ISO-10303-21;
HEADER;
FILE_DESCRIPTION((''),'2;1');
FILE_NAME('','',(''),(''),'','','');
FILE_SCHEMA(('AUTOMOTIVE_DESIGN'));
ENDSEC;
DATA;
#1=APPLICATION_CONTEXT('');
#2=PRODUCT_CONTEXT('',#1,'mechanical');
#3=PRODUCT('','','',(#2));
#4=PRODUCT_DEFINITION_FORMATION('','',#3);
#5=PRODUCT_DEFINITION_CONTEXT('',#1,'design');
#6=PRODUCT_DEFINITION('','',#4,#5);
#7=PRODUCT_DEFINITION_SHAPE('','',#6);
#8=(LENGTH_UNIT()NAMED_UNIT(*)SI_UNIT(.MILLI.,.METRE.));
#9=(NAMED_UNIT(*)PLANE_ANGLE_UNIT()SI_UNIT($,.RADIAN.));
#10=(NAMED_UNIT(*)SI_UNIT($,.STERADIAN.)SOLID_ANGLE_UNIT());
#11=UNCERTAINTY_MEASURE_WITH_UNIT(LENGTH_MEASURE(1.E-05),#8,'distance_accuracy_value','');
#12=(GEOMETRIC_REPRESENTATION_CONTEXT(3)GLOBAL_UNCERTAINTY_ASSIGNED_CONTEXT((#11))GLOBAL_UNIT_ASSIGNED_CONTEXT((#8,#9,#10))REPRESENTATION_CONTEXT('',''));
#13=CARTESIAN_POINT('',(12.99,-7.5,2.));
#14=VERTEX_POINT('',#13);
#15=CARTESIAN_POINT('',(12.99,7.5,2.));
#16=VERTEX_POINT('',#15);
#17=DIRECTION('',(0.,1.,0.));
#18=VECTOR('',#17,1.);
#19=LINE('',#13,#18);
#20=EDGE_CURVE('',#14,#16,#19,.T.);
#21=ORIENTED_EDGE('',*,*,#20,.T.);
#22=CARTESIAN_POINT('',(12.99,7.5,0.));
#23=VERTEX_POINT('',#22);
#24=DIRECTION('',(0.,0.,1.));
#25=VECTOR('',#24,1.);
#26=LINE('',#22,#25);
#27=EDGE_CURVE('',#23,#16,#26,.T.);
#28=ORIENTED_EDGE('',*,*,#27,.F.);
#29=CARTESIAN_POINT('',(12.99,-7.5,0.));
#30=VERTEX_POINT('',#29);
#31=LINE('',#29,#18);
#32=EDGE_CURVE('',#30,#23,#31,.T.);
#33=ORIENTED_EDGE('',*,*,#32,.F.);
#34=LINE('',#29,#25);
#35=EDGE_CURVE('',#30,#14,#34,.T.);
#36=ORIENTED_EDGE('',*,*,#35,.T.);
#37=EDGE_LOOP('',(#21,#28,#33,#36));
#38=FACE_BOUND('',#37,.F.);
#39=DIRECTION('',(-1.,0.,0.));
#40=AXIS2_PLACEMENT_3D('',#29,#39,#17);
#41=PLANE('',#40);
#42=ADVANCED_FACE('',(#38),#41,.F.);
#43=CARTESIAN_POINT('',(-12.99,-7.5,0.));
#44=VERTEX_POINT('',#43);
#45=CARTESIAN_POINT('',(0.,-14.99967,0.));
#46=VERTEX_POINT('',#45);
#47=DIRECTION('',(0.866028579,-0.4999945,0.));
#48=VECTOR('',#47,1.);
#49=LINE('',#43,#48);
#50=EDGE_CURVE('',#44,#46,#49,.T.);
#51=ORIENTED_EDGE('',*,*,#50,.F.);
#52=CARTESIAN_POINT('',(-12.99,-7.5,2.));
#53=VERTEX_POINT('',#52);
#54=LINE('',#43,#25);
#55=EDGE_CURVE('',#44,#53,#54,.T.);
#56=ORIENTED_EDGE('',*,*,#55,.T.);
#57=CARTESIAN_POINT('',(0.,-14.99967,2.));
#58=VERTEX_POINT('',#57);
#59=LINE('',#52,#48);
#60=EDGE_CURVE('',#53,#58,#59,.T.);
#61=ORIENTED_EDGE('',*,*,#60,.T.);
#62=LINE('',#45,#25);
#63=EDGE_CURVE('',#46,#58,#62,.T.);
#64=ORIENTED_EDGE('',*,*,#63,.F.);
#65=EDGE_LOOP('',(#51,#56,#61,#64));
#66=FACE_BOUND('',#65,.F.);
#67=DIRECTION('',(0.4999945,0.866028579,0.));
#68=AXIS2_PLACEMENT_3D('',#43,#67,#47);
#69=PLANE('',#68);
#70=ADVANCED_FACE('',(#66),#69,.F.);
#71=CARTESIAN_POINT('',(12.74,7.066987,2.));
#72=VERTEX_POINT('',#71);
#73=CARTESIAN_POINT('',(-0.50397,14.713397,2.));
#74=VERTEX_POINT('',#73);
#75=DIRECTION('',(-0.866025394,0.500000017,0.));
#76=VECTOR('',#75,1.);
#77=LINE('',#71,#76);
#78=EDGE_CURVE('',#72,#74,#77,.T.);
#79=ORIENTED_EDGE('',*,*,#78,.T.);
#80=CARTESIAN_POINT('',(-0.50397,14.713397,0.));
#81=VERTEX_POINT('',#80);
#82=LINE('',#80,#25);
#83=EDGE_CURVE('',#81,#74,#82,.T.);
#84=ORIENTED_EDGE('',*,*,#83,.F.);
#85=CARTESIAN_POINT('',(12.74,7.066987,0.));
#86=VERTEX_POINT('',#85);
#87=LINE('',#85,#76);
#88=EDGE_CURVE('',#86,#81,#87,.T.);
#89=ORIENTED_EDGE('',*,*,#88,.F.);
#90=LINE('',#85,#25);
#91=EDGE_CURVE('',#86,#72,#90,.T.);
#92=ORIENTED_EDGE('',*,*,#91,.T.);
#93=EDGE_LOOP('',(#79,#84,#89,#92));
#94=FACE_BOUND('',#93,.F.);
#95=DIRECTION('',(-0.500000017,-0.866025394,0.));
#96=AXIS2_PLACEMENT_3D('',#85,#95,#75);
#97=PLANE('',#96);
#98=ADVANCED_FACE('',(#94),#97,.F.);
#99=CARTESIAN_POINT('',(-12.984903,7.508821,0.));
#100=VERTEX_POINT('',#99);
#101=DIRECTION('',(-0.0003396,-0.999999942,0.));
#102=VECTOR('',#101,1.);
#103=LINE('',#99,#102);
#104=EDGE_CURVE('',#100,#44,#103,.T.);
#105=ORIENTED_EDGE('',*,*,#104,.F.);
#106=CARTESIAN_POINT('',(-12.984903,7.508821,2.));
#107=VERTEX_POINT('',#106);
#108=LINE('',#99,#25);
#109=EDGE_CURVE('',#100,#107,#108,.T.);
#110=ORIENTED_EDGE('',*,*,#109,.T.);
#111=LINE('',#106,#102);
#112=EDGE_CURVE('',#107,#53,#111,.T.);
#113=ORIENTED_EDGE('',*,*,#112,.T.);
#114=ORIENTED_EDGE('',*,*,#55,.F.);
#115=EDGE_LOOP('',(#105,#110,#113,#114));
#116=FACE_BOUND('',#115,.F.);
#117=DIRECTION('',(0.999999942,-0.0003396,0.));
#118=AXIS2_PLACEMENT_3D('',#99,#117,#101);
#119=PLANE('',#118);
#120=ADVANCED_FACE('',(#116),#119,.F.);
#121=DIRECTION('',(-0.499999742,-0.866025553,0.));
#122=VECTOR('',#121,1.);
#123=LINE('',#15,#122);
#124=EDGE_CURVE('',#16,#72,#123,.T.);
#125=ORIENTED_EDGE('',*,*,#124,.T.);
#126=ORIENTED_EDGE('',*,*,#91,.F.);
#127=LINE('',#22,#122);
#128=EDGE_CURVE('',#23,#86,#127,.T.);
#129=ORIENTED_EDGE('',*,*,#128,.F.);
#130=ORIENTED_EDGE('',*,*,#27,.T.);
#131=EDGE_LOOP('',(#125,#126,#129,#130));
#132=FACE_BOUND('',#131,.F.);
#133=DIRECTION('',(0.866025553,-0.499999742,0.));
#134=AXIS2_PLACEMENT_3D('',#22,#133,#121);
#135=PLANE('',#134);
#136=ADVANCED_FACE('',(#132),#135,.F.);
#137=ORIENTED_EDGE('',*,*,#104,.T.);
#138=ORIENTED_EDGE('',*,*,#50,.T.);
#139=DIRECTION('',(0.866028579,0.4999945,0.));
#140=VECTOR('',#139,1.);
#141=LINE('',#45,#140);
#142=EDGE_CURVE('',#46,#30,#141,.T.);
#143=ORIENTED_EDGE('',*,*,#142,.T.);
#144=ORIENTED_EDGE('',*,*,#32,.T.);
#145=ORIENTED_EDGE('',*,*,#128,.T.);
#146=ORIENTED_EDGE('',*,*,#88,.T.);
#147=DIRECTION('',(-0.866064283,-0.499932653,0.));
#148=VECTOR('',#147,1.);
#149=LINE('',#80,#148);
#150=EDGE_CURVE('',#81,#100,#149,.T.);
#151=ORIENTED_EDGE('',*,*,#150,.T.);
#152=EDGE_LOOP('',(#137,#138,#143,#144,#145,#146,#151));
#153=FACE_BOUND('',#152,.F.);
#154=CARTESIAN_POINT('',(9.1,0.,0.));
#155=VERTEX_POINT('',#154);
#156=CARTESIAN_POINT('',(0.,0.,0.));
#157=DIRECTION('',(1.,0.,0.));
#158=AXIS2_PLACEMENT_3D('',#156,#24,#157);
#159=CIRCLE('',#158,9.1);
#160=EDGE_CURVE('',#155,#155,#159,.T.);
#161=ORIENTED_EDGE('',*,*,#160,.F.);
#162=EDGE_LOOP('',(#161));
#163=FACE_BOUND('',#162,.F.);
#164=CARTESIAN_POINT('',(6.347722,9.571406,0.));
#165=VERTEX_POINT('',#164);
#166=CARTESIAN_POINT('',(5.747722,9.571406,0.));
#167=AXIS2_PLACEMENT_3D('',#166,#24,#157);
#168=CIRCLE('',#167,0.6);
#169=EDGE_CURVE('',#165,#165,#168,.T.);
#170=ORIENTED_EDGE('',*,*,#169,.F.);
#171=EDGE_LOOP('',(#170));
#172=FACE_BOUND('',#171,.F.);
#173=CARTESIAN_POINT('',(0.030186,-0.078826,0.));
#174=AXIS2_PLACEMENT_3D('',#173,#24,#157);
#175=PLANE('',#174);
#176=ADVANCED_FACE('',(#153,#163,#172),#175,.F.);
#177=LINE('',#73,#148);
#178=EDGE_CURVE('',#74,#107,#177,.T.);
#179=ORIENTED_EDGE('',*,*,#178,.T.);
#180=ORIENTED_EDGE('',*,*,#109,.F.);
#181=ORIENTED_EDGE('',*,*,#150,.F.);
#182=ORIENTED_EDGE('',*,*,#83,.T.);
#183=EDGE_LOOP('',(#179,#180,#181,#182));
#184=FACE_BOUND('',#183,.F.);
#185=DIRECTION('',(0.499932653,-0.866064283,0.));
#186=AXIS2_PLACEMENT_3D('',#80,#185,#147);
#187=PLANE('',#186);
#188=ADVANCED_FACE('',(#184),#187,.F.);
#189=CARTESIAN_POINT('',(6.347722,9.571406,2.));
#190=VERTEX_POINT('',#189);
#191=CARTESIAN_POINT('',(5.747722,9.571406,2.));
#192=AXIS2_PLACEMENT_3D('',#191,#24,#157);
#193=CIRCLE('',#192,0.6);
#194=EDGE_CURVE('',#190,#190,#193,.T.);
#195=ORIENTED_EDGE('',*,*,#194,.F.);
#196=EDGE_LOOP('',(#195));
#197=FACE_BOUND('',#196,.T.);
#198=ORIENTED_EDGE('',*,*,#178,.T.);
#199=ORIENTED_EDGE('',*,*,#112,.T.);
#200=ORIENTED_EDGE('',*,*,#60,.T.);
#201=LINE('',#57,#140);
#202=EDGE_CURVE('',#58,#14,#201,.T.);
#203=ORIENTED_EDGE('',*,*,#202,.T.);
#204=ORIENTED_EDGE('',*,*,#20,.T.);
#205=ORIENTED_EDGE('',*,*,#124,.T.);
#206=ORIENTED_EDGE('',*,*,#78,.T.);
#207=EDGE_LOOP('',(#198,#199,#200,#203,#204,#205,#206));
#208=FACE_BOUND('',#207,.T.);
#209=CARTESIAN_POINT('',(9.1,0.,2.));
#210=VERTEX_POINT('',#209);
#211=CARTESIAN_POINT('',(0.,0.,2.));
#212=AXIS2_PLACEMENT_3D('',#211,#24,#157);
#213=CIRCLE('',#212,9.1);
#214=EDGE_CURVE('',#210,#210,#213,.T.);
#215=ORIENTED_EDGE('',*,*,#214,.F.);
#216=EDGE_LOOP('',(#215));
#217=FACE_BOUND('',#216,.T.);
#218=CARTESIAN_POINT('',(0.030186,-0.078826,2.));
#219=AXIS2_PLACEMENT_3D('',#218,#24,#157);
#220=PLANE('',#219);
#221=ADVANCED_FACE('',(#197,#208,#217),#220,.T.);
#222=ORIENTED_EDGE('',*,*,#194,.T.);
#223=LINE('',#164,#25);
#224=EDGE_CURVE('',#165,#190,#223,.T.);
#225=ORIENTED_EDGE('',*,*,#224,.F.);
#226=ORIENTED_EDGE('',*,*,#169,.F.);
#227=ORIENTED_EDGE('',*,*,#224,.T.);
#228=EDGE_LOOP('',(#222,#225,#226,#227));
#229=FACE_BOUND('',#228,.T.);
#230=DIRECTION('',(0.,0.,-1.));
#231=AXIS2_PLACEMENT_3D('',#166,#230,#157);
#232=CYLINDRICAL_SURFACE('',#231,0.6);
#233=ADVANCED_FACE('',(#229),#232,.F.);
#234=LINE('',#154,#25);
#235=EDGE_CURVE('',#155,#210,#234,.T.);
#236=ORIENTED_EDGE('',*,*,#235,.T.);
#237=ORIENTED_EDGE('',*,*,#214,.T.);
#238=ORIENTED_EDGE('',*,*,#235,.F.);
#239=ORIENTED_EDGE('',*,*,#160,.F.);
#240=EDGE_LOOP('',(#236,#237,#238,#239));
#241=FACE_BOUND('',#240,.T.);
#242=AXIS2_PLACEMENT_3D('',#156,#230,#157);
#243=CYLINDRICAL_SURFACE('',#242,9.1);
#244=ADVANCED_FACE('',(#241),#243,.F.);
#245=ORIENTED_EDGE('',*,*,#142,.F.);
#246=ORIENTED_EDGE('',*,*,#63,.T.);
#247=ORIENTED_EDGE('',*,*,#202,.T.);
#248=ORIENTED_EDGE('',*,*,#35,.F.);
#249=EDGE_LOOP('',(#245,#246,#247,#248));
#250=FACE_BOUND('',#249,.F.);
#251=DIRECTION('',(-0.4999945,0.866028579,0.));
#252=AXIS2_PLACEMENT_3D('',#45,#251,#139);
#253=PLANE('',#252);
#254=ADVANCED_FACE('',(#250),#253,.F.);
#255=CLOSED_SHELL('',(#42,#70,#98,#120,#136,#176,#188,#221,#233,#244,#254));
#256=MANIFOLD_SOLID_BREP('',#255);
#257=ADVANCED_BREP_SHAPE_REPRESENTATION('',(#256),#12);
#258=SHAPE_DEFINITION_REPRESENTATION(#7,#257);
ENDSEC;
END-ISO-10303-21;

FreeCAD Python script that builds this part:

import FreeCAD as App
import Part
import Sketcher
from FreeCAD import Vector
Q = App.Units.Quantity

doc = App.newDocument("Part")
body = doc.addObject("PartDesign::Body", "Body")

# Sketch on XY plane
sketch1 = body.newObject("Sketcher::SketchObject", "Sketch")
sketch1.AttachmentSupport = (doc.getObject("XY_Plane"), [""])
sketch1.MapMode = "FlatFace"
sketch1.addGeometry([
    Part.LineSegment(Vector(-0.50397, 14.713397, 0), Vector(-12.984903, 7.508821, 0)),  # 0
    Part.LineSegment(Vector(-12.984903, 7.508821, 0), Vector(-12.99, -7.5, 0)),  # 1
    Part.LineSegment(Vector(-12.99, -7.5, 0), Vector(0, -14.99967, 0)),  # 2
    Part.LineSegment(Vector(0, -14.99967, 0), Vector(12.99, -7.5, 0)),  # 3
    Part.LineSegment(Vector(12.99, -7.5, 0), Vector(12.99, 7.5, 0)),  # 4
    Part.LineSegment(Vector(12.99, 7.5, 0), Vector(12.74, 7.066987, 0)),  # 5
    Part.LineSegment(Vector(12.74, 7.066987, 0), Vector(-0.50397, 14.713397, 0)),  # 6
    Part.Circle(Vector(0, 0, 0), Vector(0, 0, 1), 9.1),  # 7
    Part.Circle(Vector(5.747722, 9.571406, 0), Vector(0, 0, 1), 0.6),  # 8
], False)
sketch1.addConstraint([
    Sketcher.Constraint("Coincident", 0, 2, 1, 1),
    Sketcher.Constraint("Coincident", 1, 2, 2, 1),
    Sketcher.Constraint("Coincident", 2, 2, 3, 1),
    Sketcher.Constraint("Coincident", 3, 2, 4, 1),
    Sketcher.Constraint("Coincident", 4, 2, 5, 1),
    Sketcher.Constraint("Coincident", 5, 2, 6, 1),
    Sketcher.Constraint("Coincident", 6, 2, 0, 1),
    Sketcher.Constraint("Vertical", 4),
    Sketcher.Constraint("Coincident", 7, 3, -1, 1),
    Sketcher.Constraint("Symmetric", 1, 2, 4, 2, -1, 1),
    Sketcher.Constraint("PointOnObject", 2, 2, -2),
    Sketcher.Constraint("Perpendicular", 5, 6),
    Sketcher.Constraint("Horizontal", 1, 2, 3, 2),
    Sketcher.Constraint("Diameter", 7, Q("18.2 mm")),
    Sketcher.Constraint("Diameter", 8, Q("1.2 mm")),
    Sketcher.Constraint("DistanceY", 4, 1, 4, 2, Q("15 mm")),
    Sketcher.Constraint("Angle", 5, Q("-119.999983 deg")),
    Sketcher.Constraint("Distance", 5, Q("0.5 mm")),
    Sketcher.Constraint("DistanceX", 1, 2, -1, 1, Q("12.99 mm")),
    Sketcher.Constraint("Distance", 1, Q("15.008822 mm")),
    Sketcher.Constraint("Distance", 6, Q("15.292819 mm")),
    Sketcher.Constraint("DistanceY", 2, 2, -1, 1, Q("14.99967 mm")),
    Sketcher.Constraint("DistanceY", 5, 2, 8, 3, Q("2.504419 mm")),
    Sketcher.Constraint("Distance", 0, Q("14.411093 mm")),
    Sketcher.Constraint("DistanceX", -1, 1, 8, 3, Q("5.747722 mm")),
])
pad1 = body.newObject("PartDesign::Pad", "Pad")
pad1.Profile = sketch1
pad1.Length = 2

doc.recompute()
